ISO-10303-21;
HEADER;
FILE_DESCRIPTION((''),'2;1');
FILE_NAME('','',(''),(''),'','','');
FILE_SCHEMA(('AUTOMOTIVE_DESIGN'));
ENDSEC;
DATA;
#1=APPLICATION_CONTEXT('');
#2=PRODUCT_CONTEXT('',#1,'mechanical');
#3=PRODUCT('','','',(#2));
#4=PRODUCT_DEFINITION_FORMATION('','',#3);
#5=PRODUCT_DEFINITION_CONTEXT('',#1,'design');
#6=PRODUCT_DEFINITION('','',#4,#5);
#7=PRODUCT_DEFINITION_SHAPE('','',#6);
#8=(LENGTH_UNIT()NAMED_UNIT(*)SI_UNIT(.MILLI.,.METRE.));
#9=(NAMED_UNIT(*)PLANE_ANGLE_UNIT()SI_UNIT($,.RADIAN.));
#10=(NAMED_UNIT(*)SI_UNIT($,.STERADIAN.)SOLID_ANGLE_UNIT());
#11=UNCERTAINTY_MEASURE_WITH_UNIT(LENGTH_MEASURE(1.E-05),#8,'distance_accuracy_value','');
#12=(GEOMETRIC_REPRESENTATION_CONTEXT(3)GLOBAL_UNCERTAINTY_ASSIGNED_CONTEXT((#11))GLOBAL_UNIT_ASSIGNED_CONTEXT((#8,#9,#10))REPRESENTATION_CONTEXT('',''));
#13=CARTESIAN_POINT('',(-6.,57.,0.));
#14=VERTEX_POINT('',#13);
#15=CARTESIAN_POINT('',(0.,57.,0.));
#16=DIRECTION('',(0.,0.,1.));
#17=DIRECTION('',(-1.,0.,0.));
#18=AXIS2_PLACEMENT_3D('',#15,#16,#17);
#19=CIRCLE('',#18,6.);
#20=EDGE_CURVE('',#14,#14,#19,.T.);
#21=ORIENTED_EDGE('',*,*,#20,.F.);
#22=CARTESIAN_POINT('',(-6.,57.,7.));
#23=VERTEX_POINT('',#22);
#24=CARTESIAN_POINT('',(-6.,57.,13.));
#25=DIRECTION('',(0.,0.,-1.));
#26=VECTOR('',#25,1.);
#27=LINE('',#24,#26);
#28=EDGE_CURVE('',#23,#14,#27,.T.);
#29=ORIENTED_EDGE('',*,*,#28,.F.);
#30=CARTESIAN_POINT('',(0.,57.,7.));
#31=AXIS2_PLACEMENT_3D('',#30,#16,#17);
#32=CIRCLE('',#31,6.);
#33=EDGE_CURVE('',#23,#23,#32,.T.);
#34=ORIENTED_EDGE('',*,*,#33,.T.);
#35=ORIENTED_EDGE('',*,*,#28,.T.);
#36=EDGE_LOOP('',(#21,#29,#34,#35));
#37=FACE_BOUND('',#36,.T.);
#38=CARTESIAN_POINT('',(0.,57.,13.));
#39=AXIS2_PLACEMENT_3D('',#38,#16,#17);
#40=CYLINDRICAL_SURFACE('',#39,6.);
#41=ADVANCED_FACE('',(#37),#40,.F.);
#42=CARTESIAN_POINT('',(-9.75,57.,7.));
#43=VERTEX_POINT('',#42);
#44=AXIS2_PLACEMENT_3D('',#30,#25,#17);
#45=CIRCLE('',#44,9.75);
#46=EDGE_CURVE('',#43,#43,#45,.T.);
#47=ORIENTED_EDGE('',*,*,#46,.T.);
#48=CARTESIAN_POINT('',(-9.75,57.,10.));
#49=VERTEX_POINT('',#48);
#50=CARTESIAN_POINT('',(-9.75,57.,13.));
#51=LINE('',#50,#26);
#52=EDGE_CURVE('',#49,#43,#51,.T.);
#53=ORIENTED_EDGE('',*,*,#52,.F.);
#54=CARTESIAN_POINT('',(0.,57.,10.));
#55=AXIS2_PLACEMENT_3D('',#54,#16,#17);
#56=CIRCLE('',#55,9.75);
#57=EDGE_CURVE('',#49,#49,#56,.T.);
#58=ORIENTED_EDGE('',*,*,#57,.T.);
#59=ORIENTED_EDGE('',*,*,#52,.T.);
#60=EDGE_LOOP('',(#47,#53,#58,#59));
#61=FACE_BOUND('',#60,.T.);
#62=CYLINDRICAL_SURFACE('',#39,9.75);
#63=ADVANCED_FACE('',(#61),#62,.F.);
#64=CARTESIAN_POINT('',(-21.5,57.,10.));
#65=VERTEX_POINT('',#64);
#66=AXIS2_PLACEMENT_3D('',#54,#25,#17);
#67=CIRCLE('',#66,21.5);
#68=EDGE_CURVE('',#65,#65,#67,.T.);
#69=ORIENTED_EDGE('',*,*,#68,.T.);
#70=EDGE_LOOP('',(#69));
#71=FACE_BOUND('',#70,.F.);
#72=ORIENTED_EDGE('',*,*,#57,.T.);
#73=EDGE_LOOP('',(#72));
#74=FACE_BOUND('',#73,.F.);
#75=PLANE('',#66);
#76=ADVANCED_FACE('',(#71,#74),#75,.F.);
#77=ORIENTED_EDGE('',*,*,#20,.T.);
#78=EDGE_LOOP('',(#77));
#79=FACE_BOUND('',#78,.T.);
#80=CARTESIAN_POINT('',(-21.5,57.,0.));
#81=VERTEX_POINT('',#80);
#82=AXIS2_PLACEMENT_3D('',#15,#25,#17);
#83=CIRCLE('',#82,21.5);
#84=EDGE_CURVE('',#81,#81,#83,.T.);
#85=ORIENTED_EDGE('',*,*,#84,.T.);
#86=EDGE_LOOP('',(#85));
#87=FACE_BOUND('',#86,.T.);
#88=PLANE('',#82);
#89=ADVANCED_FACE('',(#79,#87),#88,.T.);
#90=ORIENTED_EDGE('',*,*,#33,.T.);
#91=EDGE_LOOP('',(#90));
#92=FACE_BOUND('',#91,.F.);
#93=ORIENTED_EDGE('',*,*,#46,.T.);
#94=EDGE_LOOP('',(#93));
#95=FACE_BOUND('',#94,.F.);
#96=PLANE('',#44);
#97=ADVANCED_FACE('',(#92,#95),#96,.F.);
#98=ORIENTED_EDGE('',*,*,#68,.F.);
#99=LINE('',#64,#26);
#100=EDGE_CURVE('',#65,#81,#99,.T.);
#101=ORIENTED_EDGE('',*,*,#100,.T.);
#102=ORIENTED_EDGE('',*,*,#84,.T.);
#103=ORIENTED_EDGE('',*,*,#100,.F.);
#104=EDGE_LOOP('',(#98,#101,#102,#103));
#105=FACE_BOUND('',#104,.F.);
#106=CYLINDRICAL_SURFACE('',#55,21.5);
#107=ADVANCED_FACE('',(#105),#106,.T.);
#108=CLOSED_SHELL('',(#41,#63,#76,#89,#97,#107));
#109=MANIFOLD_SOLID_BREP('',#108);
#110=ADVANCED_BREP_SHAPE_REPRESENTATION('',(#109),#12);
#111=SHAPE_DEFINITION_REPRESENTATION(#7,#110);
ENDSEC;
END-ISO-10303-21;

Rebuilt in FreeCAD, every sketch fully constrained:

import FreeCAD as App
import Part
import Sketcher
Q = App.Units.Quantity

doc = App.newDocument("Part")
params = doc.addObject("Spreadsheet::Sheet", "Params")
for row, (alias, value) in enumerate([
    ("sketch1_diameter", "12 mm"),
    ("pad1_length", "20 mm"),
    ("sketch2_diameter", "19.5 mm"),
    ("pad2_length", "6 mm"),
    ("sketch3_diameter", "43 mm"),
    ("pad3_length", "10 mm"),
], start=1):
    params.set(f"A{row}", alias)
    params.set(f"B{row}", "=" + value)
    params.setAlias(f"B{row}", alias)

body = doc.addObject("PartDesign::Body", "Body")

sketch1 = doc.addObject("Sketcher::SketchObject", "Sketch")
body.addObject(sketch1)
sketch1.AttachmentSupport = (doc.XY_Plane, [""])
sketch1.MapMode = "FlatFace"
sketch1.addGeometry(Part.Circle(App.Vector(0, 0, 0), App.Vector(0, 0, 1), 6), False)
sketch1.addConstraint([
    Sketcher.Constraint("Coincident", 0, 3, -1, 1),
    Sketcher.Constraint("Diameter", 0, Q("12 mm")),
])
sketch1.setExpression("Constraints[1]", "Params.sketch1_diameter")
pad1 = doc.addObject("PartDesign::Pad", "Pad")
body.addObject(pad1)
pad1.Profile = sketch1
pad1.setExpression("Length", "Params.pad1_length")
body2 = doc.addObject("PartDesign::Body", "Body001")

sketch2 = doc.addObject("Sketcher::SketchObject", "Sketch001")
body2.addObject(sketch2)
sketch2.AttachmentSupport = (doc.getObject("XY_Plane001"), [""])
sketch2.MapMode = "FlatFace"
sketch2.addGeometry(Part.Circle(App.Vector(0, 0, 0), App.Vector(0, 0, 1), 9.75), False)
sketch2.addConstraint([
    Sketcher.Constraint("Coincident", 0, 3, -1, 1),
    Sketcher.Constraint("Diameter", 0, Q("19.5 mm")),
])
sketch2.setExpression("Constraints[1]", "Params.sketch2_diameter")
pad2 = doc.addObject("PartDesign::Pad", "Pad001")
body2.addObject(pad2)
pad2.Profile = sketch2
pad2.setExpression("Length", "Params.pad2_length")
body3 = doc.addObject("PartDesign::Body", "Body002")

sketch3 = doc.addObject("Sketcher::SketchObject", "Sketch002")
body3.addObject(sketch3)
sketch3.AttachmentSupport = (doc.getObject("XY_Plane002"), [""])
sketch3.MapMode = "FlatFace"
sketch3.AttachmentOffset = App.Placement(App.Vector(0, 0, 3), App.Rotation())
sketch3.addGeometry(Part.Circle(App.Vector(0, 0, 0), App.Vector(0, 0, 1), 21.5), False)
sketch3.addConstraint([
    Sketcher.Constraint("Coincident", 0, 3, -1, 1),
    Sketcher.Constraint("Diameter", 0, Q("43 mm")),
])
sketch3.setExpression("Constraints[1]", "Params.sketch3_diameter")
pad3 = doc.addObject("PartDesign::Pad", "Pad002")
body3.addObject(pad3)
pad3.Profile = sketch3
pad3.setExpression("Length", "Params.pad3_length")
doc.recompute()

boolean = doc.addObject("PartDesign::Boolean", "Boolean")
body3.addObject(boolean)
boolean.Type = "Cut"
boolean.addObjects([body2])
doc.recompute()

boolean2 = doc.addObject("PartDesign::Boolean", "Boolean001")
body3.addObject(boolean2)
boolean2.Type = "Cut"
boolean2.addObjects([body])
body4 = doc.addObject("PartDesign::Body", "Body003")
doc.recompute()

body3.Placement = App.Placement(App.Vector(0, 57, 13), App.Rotation(App.Vector(0, 1, 0), 180))
boolean3 = doc.addObject("PartDesign::Boolean", "Boolean002")
body4.addObject(boolean3)
boolean3.Type = "Fuse"
boolean3.addObjects([body3])

doc.recompute()
